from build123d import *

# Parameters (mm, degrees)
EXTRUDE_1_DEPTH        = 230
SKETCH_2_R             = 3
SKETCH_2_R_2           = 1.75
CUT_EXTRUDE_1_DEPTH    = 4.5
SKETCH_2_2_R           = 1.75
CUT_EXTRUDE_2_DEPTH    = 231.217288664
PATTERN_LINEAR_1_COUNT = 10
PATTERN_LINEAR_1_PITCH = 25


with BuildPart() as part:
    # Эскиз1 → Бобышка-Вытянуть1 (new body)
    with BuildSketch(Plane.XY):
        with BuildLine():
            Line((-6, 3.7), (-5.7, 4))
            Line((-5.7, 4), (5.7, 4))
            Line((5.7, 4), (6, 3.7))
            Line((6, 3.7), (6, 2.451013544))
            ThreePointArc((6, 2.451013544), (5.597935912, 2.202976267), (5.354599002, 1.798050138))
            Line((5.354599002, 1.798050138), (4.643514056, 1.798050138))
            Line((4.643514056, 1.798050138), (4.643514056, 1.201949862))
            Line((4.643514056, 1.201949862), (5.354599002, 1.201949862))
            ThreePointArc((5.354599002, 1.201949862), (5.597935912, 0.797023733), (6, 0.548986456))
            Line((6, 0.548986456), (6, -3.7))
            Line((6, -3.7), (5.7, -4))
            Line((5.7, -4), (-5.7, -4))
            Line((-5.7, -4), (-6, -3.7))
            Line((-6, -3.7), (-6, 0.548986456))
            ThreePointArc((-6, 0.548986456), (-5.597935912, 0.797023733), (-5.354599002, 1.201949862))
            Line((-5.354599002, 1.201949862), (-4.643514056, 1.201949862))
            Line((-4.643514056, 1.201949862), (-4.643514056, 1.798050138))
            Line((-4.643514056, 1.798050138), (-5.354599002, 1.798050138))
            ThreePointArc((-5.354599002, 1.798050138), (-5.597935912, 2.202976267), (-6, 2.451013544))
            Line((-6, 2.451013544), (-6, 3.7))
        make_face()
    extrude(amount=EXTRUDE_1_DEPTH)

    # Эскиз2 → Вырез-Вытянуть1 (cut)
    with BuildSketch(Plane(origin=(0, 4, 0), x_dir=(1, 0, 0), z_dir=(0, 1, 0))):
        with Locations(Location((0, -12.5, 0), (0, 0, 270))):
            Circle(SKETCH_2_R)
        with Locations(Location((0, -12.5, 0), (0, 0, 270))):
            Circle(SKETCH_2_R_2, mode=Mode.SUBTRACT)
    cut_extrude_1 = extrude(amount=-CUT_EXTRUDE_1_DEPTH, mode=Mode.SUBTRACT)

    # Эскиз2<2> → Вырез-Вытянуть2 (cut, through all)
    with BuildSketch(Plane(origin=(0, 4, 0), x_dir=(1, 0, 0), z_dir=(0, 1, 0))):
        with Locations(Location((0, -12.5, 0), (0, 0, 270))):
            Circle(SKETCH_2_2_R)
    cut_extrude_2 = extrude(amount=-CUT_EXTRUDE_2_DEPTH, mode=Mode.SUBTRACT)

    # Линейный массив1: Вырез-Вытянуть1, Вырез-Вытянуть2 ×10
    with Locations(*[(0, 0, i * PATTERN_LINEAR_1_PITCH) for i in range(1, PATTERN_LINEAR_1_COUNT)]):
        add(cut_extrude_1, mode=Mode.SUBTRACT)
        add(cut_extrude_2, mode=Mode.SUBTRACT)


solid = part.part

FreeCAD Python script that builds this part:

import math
import FreeCAD as App
import Part
import Sketcher
from FreeCAD import Vector

doc = App.newDocument("Part")
params = doc.addObject("Spreadsheet::Sheet", "Params")
for row, (alias, value) in enumerate([
    ("sketch1_radius", "1 mm"),
    ("sketch1_width", "11.4 mm"),
    ("pad1_length", "230 mm"),
    ("sketch2_diameter", "6 mm"),
    ("sketch2_diameter2", "3.5 mm"),
    ("pocket1_length", "4.5 mm"),
    ("sketch3_diameter", "3.5 mm"),
    ("linearpattern_pitch", "25 mm"),
], start=1):
    params.set(f"A{row}", alias)
    params.set(f"B{row}", "=" + value)
    params.setAlias(f"B{row}", alias)

body = doc.addObject("PartDesign::Body", "Body")

# Sketch on XY plane
sketch1 = doc.addObject("Sketcher::SketchObject", "Sketch")
body.addObject(sketch1)
sketch1.AttachmentSupport = (doc.XY_Plane, [""])
sketch1.MapMode = "FlatFace"
sketch1.addGeometry(Part.LineSegment(Vector(-5.7, 4, 0), Vector(-6, 3.7, 0)), False)
sketch1.addGeometry(Part.LineSegment(Vector(-6, 3.7, 0), Vector(-6, 2.451014, 0)), False)
sketch1.addGeometry(Part.ArcOfCircle(Part.Circle(Vector(-6.309149, 1.5, 0), Vector(0, 0, 1), 1), math.radians(17.340528), math.radians(71.992034)), False)
sketch1.addGeometry(Part.LineSegment(Vector(-5.354599, 1.79805, 0), Vector(-4.643514, 1.79805, 0)), False)
sketch1.addGeometry(Part.LineSegment(Vector(-4.643514, 1.79805, 0), Vector(-4.643514, 1.20195, 0)), False)
sketch1.addGeometry(Part.LineSegment(Vector(-4.643514, 1.20195, 0), Vector(-5.354599, 1.20195, 0)), False)
sketch1.addGeometry(Part.ArcOfCircle(Part.Circle(Vector(-6.309149, 1.5, 0), Vector(0, 0, 1), 1), math.radians(-71.992034), math.radians(-17.340528)), False)
sketch1.addGeometry(Part.LineSegment(Vector(-6, 0.548986, 0), Vector(-6, -3.7, 0)), False)
sketch1.addGeometry(Part.LineSegment(Vector(-6, -3.7, 0), Vector(-5.7, -4, 0)), False)
sketch1.addGeometry(Part.LineSegment(Vector(-5.7, -4, 0), Vector(5.7, -4, 0)), False)
sketch1.addGeometry(Part.LineSegment(Vector(5.7, -4, 0), Vector(6, -3.7, 0)), False)
sketch1.addGeometry(Part.LineSegment(Vector(6, -3.7, 0), Vector(6, 0.548986, 0)), False)
sketch1.addGeometry(Part.ArcOfCircle(Part.Circle(Vector(6.309149, 1.5, 0), Vector(0, 0, 1), 1), math.radians(-162.659472), math.radians(-108.007966)), False)
sketch1.addGeometry(Part.LineSegment(Vector(5.354599, 1.20195, 0), Vector(4.643514, 1.20195, 0)), False)
sketch1.addGeometry(Part.LineSegment(Vector(4.643514, 1.20195, 0), Vector(4.643514, 1.79805, 0)), False)
sketch1.addGeometry(Part.LineSegment(Vector(4.643514, 1.79805, 0), Vector(5.354599, 1.79805, 0)), False)
sketch1.addGeometry(Part.ArcOfCircle(Part.Circle(Vector(6.309149, 1.5, 0), Vector(0, 0, 1), 1), math.radians(108.007966), math.radians(162.659472)), False)
sketch1.addGeometry(Part.LineSegment(Vector(6, 2.451014, 0), Vector(6, 3.7, 0)), False)
sketch1.addGeometry(Part.LineSegment(Vector(6, 3.7, 0), Vector(5.7, 4, 0)), False)
sketch1.addGeometry(Part.LineSegment(Vector(5.7, 4, 0), Vector(-5.7, 4, 0)), False)
sketch1.addConstraint(Sketcher.Constraint("Coincident", 0, 2, 1, 1))
sketch1.addConstraint(Sketcher.Constraint("Coincident", 1, 2, 2, 2))
sketch1.addConstraint(Sketcher.Constraint("Coincident", 2, 1, 3, 1))
sketch1.addConstraint(Sketcher.Constraint("Coincident", 3, 2, 4, 1))
sketch1.addConstraint(Sketcher.Constraint("Coincident", 4, 2, 5, 1))
sketch1.addConstraint(Sketcher.Constraint("Coincident", 5, 2, 6, 2))
sketch1.addConstraint(Sketcher.Constraint("Coincident", 6, 1, 7, 1))
sketch1.addConstraint(Sketcher.Constraint("Coincident", 7, 2, 8, 1))
sketch1.addConstraint(Sketcher.Constraint("Coincident", 8, 2, 9, 1))
sketch1.addConstraint(Sketcher.Constraint("Coincident", 9, 2, 10, 1))
sketch1.addConstraint(Sketcher.Constraint("Coincident", 10, 2, 11, 1))
sketch1.addConstraint(Sketcher.Constraint("Coincident", 11, 2, 12, 2))
sketch1.addConstraint(Sketcher.Constraint("Coincident", 12, 1, 13, 1))
sketch1.addConstraint(Sketcher.Constraint("Coincident", 13, 2, 14, 1))
sketch1.addConstraint(Sketcher.Constraint("Coincident", 14, 2, 15, 1))
sketch1.addConstraint(Sketcher.Constraint("Coincident", 15, 2, 16, 2))
sketch1.addConstraint(Sketcher.Constraint("Coincident", 16, 1, 17, 1))
sketch1.addConstraint(Sketcher.Constraint("Coincident", 17, 2, 18, 1))
sketch1.addConstraint(Sketcher.Constraint("Coincident", 18, 2, 19, 1))
sketch1.addConstraint(Sketcher.Constraint("Coincident", 19, 2, 0, 1))
sketch1.addConstraint(Sketcher.Constraint("Vertical", 1))
sketch1.addConstraint(Sketcher.Constraint("Horizontal", 3))
sketch1.addConstraint(Sketcher.Constraint("Vertical", 4))
sketch1.addConstraint(Sketcher.Constraint("Horizontal", 5))
sketch1.addConstraint(Sketcher.Constraint("Vertical", 7))
sketch1.addConstraint(Sketcher.Constraint("Horizontal", 9))
sketch1.addConstraint(Sketcher.Constraint("Vertical", 11))
sketch1.addConstraint(Sketcher.Constraint("Horizontal", 13))
sketch1.addConstraint(Sketcher.Constraint("Vertical", 14))
sketch1.addConstraint(Sketcher.Constraint("Horizontal", 15))
sketch1.addConstraint(Sketcher.Constraint("Vertical", 17))
sketch1.addConstraint(Sketcher.Constraint("Horizontal", 19))
sketch1.addConstraint(Sketcher.Constraint("Coincident", 6, 3, 2, 3))
sketch1.addConstraint(Sketcher.Constraint("Coincident", 16, 3, 12, 3))
sketch1.addConstraint(Sketcher.Constraint("Equal", 2, 6))
sketch1.addConstraint(Sketcher.Constraint("Equal", 6, 12))
sketch1.addConstraint(Sketcher.Constraint("Equal", 12, 16))
sketch1.addConstraint(Sketcher.Constraint("Symmetric", 0, 2, 10, 2, -1, 1))
sketch1.addConstraint(Sketcher.Constraint("Symmetric", 7, 2, 17, 2, -1, 1))
sketch1.addConstraint(Sketcher.Constraint("Symmetric", 8, 2, 18, 2, -1, 1))
sketch1.addConstraint(Sketcher.Constraint("Symmetric", 2, 3, 12, 3, -2))
sketch1.addConstraint(Sketcher.Constraint("Symmetric", 7, 2, 10, 2, -2))
sketch1.addConstraint(Sketcher.Constraint("Symmetric", 4, 2, 13, 2, -2))
sketch1.addConstraint(Sketcher.Constraint("Perpendicular", 0, 8))
sketch1.addConstraint(Sketcher.Constraint("Perpendicular", 8, 10))
sketch1.addConstraint(Sketcher.Constraint("Horizontal", 3, 2, 14, 2))
sketch1.addConstraint(Sketcher.Constraint("Vertical", 2, 1, 5, 2))
sketch1.addConstraint(Sketcher.Constraint("Vertical", 9, 2, 18, 2))
sketch1.addConstraint(Sketcher.Constraint("Radius", 2, 1.0))
sketch1.addConstraint(Sketcher.Constraint("DistanceX", 9, 1, 9, 2, 11.4))
sketch1.addConstraint(Sketcher.Constraint("DistanceX", 0, 2, -1, 1, 6.0))
sketch1.addConstraint(Sketcher.Constraint("DistanceY", 8, 2, -1, 1, 4.0))
sketch1.addConstraint(Sketcher.Constraint("DistanceY", -1, 1, 2, 3, 1.5))
sketch1.addConstraint(Sketcher.Constraint("DistanceY", 4, 2, 4, 1, 0.5961))
sketch1.addConstraint(Sketcher.Constraint("DistanceX", 2, 1, -1, 1, 5.354599))
sketch1.addConstraint(Sketcher.Constraint("DistanceX", 3, 1, 3, 2, 0.711085))
sketch1.setExpression("Constraints[48]", "Params.sketch1_radius")
sketch1.setExpression("Constraints[49]", "Params.sketch1_width")
pad1 = doc.addObject("PartDesign::Pad", "Pad")
body.addObject(pad1)
pad1.Profile = sketch1
pad1.setExpression("Length", "Params.pad1_length")

# Sketch on XZ plane
sketch2 = doc.addObject("Sketcher::SketchObject", "Sketch001")
body.addObject(sketch2)
sketch2.AttachmentSupport = (doc.XZ_Plane, [""])
sketch2.MapMode = "FlatFace"
sketch2.AttachmentOffset = App.Placement(Vector(0, 0, -4), App.Rotation())
sketch2.addGeometry(Part.Circle(Vector(0, 12.5, 0), Vector(0, 0, 1), 3), False)
sketch2.addGeometry(Part.Circle(Vector(0, 12.5, 0), Vector(0, 0, 1), 1.75), False)
sketch2.addConstraint(Sketcher.Constraint("Coincident", 1, 3, 0, 3))
sketch2.addConstraint(Sketcher.Constraint("PointOnObject", 0, 3, -2))
sketch2.addConstraint(Sketcher.Constraint("Diameter", 0, 6.0))
sketch2.addConstraint(Sketcher.Constraint("Diameter", 1, 3.5))
sketch2.addConstraint(Sketcher.Constraint("DistanceY", -1, 1, 0, 3, 12.5))
sketch2.setExpression("Constraints[2]", "Params.sketch2_diameter")
sketch2.setExpression("Constraints[3]", "Params.sketch2_diameter2")
pocket1 = doc.addObject("PartDesign::Pocket", "Pocket")
body.addObject(pocket1)
pocket1.Profile = sketch2
pocket1.setExpression("Length", "Params.pocket1_length")
pocket1.Reversed = True

# Sketch on XZ plane
sketch3 = doc.addObject("Sketcher::SketchObject", "Sketch002")
body.addObject(sketch3)
sketch3.AttachmentSupport = (doc.XZ_Plane, [""])
sketch3.MapMode = "FlatFace"
sketch3.AttachmentOffset = App.Placement(Vector(0, 0, -4), App.Rotation())
sketch3.addGeometry(Part.Circle(Vector(0, 12.5, 0), Vector(0, 0, 1), 1.75), False)
sketch3.addConstraint(Sketcher.Constraint("PointOnObject", 0, 3, -2))
sketch3.addConstraint(Sketcher.Constraint("Diameter", 0, 3.5))
sketch3.addConstraint(Sketcher.Constraint("DistanceY", -1, 1, 0, 3, 12.5))
sketch3.setExpression("Constraints[1]", "Params.sketch3_diameter")
pocket2 = doc.addObject("PartDesign::Pocket", "Pocket001")
body.addObject(pocket2)
pocket2.Profile = sketch3
pocket2.Type = "ThroughAll"
pocket2.Reversed = True
doc.recompute()

linearpattern = doc.addObject("PartDesign::LinearPattern", "LinearPattern")
body.addObject(linearpattern)
linearpattern.Originals = [pocket1, pocket2]
linearpattern.Direction = (doc.Z_Axis, [""])
linearpattern.Mode = "offset"
linearpattern.setExpression("Offset", "Params.linearpattern_pitch")
linearpattern.Occurrences = 10
body.Tip = linearpattern

doc.recompute()
